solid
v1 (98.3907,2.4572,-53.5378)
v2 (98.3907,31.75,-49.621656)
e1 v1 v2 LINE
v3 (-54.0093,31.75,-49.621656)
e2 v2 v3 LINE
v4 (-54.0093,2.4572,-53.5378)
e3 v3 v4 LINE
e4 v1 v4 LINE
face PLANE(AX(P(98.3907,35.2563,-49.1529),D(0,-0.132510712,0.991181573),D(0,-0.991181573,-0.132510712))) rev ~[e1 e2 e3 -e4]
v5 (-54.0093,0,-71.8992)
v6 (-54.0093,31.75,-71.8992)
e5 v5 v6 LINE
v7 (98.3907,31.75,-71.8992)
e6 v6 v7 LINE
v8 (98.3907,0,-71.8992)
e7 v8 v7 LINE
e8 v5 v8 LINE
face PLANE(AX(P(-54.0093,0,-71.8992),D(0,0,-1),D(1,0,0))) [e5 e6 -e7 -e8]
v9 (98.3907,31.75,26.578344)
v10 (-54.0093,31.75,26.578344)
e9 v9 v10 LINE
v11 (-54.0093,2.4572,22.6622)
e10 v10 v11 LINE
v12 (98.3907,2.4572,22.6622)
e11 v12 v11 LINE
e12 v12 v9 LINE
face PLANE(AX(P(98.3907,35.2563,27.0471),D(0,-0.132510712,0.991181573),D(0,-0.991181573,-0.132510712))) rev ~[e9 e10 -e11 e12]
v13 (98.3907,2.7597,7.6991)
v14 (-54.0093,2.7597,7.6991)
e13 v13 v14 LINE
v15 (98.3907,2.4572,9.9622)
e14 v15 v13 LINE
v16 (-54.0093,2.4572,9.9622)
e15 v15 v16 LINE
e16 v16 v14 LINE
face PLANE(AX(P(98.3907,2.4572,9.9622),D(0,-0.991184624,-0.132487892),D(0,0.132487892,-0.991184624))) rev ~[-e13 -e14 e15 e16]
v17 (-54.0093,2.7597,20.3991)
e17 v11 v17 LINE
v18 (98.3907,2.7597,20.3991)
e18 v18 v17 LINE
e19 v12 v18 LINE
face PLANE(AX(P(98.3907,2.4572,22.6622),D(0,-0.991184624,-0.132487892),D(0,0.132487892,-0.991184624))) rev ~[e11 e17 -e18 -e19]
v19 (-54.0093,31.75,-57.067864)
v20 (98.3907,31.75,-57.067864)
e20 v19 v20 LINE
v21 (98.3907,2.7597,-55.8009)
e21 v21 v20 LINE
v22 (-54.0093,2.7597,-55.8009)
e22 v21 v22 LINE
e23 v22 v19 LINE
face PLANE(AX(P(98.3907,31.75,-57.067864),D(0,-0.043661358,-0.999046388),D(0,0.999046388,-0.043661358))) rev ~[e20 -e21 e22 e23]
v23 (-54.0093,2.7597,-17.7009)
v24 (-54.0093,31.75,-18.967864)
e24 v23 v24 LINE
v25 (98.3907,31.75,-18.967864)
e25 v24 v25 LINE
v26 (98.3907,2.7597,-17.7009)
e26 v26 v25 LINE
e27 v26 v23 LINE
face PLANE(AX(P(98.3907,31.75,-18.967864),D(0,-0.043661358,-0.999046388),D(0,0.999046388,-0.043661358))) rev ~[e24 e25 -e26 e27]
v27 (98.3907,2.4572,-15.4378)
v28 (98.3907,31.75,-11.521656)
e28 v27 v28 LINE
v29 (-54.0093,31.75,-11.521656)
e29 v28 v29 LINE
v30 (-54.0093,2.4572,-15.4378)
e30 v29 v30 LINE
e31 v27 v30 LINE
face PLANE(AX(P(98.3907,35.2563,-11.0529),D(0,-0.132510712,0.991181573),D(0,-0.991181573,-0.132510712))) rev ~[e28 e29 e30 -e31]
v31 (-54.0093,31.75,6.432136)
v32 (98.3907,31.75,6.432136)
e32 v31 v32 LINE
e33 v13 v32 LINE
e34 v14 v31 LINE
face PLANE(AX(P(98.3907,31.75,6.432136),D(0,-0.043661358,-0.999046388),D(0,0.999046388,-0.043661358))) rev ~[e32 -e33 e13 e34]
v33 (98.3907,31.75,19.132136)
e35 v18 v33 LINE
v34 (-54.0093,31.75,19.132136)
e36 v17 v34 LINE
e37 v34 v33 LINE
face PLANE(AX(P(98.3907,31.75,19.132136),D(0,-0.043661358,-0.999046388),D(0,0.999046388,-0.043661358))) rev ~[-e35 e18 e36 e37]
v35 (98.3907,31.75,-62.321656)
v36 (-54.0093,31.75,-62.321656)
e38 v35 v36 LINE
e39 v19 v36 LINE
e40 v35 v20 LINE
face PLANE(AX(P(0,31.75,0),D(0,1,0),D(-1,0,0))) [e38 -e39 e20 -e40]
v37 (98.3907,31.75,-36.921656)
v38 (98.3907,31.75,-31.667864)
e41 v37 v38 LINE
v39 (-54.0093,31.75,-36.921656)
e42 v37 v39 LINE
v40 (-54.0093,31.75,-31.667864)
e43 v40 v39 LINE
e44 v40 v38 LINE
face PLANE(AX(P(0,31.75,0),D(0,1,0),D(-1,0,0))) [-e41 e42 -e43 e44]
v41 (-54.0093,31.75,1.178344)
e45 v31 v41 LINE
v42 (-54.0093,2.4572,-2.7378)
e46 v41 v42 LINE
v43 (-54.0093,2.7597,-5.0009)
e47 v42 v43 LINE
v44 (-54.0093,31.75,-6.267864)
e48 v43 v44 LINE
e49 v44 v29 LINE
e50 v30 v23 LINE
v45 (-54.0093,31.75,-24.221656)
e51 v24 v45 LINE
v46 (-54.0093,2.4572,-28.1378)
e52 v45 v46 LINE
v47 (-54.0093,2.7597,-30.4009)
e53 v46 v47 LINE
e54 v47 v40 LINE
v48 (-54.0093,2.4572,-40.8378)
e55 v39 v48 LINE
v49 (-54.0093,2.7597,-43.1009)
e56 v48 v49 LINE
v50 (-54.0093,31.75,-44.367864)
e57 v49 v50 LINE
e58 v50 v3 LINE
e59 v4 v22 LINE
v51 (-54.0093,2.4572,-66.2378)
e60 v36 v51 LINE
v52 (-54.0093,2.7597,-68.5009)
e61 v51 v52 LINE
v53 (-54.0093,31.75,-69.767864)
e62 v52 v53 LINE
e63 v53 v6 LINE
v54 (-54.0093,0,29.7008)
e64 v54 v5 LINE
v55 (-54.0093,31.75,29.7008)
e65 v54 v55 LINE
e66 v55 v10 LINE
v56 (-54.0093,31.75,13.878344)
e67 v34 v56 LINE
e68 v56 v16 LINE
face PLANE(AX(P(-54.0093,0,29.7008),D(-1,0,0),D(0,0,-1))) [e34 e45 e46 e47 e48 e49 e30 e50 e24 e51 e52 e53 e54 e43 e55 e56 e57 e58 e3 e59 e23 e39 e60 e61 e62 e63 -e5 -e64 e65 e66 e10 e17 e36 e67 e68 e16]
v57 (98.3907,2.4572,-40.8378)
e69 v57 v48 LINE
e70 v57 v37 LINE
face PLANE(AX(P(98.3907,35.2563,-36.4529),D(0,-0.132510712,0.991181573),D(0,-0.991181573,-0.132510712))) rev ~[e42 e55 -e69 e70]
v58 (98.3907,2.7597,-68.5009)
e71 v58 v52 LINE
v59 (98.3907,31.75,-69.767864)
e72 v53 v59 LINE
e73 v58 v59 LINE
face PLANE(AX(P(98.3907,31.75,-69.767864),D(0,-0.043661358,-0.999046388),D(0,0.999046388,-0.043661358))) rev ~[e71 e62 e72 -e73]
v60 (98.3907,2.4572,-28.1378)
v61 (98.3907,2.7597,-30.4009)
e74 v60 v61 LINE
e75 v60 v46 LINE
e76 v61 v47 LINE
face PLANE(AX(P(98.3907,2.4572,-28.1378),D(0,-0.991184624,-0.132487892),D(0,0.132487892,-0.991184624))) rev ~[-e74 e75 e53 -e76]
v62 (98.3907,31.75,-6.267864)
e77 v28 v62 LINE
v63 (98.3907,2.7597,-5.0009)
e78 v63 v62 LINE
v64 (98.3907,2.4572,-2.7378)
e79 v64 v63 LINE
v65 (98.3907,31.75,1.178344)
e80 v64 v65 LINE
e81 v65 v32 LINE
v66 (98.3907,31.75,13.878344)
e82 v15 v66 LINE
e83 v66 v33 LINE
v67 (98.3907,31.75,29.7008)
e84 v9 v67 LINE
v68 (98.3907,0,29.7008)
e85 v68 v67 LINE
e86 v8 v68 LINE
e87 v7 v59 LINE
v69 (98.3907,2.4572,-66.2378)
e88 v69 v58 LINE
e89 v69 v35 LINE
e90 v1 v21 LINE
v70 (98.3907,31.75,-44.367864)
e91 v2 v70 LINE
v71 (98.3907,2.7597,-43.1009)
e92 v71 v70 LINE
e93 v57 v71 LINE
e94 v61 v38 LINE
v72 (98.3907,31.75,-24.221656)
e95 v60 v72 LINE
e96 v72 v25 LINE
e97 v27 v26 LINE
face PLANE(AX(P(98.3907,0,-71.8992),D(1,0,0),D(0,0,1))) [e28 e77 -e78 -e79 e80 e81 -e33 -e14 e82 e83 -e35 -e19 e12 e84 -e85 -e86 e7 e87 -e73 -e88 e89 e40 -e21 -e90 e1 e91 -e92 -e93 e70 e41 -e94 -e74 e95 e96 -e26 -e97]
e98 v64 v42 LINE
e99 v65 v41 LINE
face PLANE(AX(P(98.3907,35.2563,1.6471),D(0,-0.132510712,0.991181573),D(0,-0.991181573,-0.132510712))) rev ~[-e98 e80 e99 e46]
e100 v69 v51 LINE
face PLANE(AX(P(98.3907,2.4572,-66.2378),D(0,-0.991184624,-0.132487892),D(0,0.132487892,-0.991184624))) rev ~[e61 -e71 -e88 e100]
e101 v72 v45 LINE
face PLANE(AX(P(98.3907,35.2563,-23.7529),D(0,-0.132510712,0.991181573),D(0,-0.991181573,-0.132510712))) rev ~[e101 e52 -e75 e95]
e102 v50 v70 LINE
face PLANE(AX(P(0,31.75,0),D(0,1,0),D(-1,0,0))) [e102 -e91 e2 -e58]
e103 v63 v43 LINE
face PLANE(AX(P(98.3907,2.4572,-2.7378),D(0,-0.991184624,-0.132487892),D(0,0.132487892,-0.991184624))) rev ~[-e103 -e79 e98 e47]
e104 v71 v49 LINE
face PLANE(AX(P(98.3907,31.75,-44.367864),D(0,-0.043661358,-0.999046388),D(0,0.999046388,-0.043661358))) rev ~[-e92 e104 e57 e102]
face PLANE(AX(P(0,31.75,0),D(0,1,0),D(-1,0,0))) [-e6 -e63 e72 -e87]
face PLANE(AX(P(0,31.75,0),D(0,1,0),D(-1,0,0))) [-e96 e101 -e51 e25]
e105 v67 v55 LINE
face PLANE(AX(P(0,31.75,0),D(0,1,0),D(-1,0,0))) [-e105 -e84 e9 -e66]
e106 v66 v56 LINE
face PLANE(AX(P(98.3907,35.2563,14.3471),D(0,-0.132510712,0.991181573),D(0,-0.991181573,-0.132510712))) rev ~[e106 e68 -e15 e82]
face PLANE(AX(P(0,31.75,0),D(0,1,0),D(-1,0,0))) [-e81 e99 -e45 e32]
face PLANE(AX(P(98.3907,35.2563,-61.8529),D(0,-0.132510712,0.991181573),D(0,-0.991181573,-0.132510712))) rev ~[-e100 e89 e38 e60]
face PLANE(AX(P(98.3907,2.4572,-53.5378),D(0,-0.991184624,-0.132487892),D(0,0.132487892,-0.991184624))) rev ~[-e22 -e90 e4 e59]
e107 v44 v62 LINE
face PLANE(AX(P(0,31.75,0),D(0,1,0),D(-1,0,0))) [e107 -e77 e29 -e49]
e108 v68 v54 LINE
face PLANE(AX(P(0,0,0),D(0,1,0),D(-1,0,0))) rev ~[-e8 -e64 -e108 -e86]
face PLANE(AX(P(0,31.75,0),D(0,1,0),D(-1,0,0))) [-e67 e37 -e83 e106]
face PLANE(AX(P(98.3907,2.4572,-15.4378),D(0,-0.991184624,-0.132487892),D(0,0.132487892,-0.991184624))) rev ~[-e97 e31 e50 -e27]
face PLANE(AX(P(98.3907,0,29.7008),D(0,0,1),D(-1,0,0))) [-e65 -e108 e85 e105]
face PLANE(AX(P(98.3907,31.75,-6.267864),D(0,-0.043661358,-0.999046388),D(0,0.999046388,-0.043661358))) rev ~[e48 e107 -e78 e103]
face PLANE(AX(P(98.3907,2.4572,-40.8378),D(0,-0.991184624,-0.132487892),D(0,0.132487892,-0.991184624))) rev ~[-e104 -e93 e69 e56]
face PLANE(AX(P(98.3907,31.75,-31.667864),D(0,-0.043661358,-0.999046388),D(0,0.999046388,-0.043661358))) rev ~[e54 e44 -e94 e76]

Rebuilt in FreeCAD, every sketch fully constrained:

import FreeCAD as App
import Part
import Sketcher
Q = App.Units.Quantity

doc = App.newDocument("Part")
body = doc.addObject("PartDesign::Body", "Body")

# Sketch on XZ plane
sketch1 = doc.addObject("Sketcher::SketchObject", "Sketch")
body.addObject(sketch1)
sketch1.AttachmentSupport = (doc.XZ_Plane, [""])
sketch1.MapMode = "FlatFace"
sketch1.addGeometry([
    Part.LineSegment(App.Vector(-54, 30, 0), App.Vector(98, 30, 0)),
    Part.LineSegment(App.Vector(98, 30, 0), App.Vector(98, -72, 0)),
    Part.LineSegment(App.Vector(98, -72, 0), App.Vector(-54, -72, 0)),
    Part.LineSegment(App.Vector(-54, -72, 0), App.Vector(-54, 30, 0)),
], False)
sketch1.addConstraint([
    Sketcher.Constraint("Coincident", 0, 2, 1, 1),
    Sketcher.Constraint("Coincident", 1, 2, 2, 1),
    Sketcher.Constraint("Coincident", 2, 2, 3, 1),
    Sketcher.Constraint("Coincident", 3, 2, 0, 1),
    Sketcher.Constraint("Horizontal", 0),
    Sketcher.Constraint("Vertical", 1),
    Sketcher.Constraint("Horizontal", 2),
    Sketcher.Constraint("Vertical", 3),
    Sketcher.Constraint("DistanceX", 0, 1, 0, 2, Q("6 in")),
    Sketcher.Constraint("DistanceY", 1, 2, 1, 1, Q("4 in")),
    Sketcher.Constraint("DistanceX", -1, 1, 0, 2, Q("98.3907 mm")),
    Sketcher.Constraint("DistanceY", -1, 1, 0, 2, Q("29.7008 mm")),
])
pad1 = doc.addObject("PartDesign::Pad", "Pad")
body.addObject(pad1)
pad1.Profile = sketch1
pad1.Length = Q("1.25 in")
pad1.Reversed = True

# Sketch on YZ plane
sketch2 = doc.addObject("Sketcher::SketchObject", "Sketch001")
body.addObject(sketch2)
sketch2.AttachmentSupport = (doc.YZ_Plane, [""])
sketch2.MapMode = "FlatFace"
sketch2.AttachmentOffset = App.Placement(App.Vector(0, 0, 98.3907), App.Rotation())
sketch2.addGeometry([
    Part.LineSegment(App.Vector(35.3, 27, 0), App.Vector(2.5, 22.7, 0)),
    Part.LineSegment(App.Vector(2.5, 22.7, 0), App.Vector(2.8, 20.4, 0)),
    Part.LineSegment(App.Vector(2.8, 20.4, 0), App.Vector(35.3, 19, 0)),
    Part.LineSegment(App.Vector(35.3, 19, 0), App.Vector(35.3, 27, 0)),
], False)
sketch2.addConstraint([
    Sketcher.Constraint("Coincident", 0, 2, 1, 1),
    Sketcher.Constraint("Coincident", 1, 2, 2, 1),
    Sketcher.Constraint("Coincident", 2, 2, 3, 1),
    Sketcher.Constraint("Coincident", 3, 2, 0, 1),
    Sketcher.Constraint("Vertical", 3),
    Sketcher.Constraint("Perpendicular", 0, 1),
    Sketcher.Constraint("DistanceY", 2, 2, 0, 2, Q("0.145 in")),
    Sketcher.Constraint("Distance", 0, Q("1.3028 in")),
    Sketcher.Constraint("Distance", 1, Q("0.0899 in")),
    Sketcher.Constraint("DistanceY", 3, 1, 3, 2, Q("8.0682 mm")),
    Sketcher.Constraint("DistanceY", -1, 1, 2, 2, Q("0.7472 in")),
    Sketcher.Constraint("DistanceX", -1, 1, 0, 2, Q("2.4572 mm")),
])
pocket1 = doc.addObject("PartDesign::Pocket", "Pocket")
body.addObject(pocket1)
pocket1.Profile = sketch2
pocket1.Type = "UpToFirst"
doc.recompute()

linearpattern = doc.addObject("PartDesign::LinearPattern", "LinearPattern")
body.addObject(linearpattern)
linearpattern.Originals = [pocket1]
linearpattern.Direction = (doc.Z_Axis, [""])
linearpattern.Mode = "offset"
linearpattern.Offset = Q("0.5 in")
linearpattern.Occurrences = 8
linearpattern.Reversed = True
body.Tip = linearpattern

doc.recompute()
